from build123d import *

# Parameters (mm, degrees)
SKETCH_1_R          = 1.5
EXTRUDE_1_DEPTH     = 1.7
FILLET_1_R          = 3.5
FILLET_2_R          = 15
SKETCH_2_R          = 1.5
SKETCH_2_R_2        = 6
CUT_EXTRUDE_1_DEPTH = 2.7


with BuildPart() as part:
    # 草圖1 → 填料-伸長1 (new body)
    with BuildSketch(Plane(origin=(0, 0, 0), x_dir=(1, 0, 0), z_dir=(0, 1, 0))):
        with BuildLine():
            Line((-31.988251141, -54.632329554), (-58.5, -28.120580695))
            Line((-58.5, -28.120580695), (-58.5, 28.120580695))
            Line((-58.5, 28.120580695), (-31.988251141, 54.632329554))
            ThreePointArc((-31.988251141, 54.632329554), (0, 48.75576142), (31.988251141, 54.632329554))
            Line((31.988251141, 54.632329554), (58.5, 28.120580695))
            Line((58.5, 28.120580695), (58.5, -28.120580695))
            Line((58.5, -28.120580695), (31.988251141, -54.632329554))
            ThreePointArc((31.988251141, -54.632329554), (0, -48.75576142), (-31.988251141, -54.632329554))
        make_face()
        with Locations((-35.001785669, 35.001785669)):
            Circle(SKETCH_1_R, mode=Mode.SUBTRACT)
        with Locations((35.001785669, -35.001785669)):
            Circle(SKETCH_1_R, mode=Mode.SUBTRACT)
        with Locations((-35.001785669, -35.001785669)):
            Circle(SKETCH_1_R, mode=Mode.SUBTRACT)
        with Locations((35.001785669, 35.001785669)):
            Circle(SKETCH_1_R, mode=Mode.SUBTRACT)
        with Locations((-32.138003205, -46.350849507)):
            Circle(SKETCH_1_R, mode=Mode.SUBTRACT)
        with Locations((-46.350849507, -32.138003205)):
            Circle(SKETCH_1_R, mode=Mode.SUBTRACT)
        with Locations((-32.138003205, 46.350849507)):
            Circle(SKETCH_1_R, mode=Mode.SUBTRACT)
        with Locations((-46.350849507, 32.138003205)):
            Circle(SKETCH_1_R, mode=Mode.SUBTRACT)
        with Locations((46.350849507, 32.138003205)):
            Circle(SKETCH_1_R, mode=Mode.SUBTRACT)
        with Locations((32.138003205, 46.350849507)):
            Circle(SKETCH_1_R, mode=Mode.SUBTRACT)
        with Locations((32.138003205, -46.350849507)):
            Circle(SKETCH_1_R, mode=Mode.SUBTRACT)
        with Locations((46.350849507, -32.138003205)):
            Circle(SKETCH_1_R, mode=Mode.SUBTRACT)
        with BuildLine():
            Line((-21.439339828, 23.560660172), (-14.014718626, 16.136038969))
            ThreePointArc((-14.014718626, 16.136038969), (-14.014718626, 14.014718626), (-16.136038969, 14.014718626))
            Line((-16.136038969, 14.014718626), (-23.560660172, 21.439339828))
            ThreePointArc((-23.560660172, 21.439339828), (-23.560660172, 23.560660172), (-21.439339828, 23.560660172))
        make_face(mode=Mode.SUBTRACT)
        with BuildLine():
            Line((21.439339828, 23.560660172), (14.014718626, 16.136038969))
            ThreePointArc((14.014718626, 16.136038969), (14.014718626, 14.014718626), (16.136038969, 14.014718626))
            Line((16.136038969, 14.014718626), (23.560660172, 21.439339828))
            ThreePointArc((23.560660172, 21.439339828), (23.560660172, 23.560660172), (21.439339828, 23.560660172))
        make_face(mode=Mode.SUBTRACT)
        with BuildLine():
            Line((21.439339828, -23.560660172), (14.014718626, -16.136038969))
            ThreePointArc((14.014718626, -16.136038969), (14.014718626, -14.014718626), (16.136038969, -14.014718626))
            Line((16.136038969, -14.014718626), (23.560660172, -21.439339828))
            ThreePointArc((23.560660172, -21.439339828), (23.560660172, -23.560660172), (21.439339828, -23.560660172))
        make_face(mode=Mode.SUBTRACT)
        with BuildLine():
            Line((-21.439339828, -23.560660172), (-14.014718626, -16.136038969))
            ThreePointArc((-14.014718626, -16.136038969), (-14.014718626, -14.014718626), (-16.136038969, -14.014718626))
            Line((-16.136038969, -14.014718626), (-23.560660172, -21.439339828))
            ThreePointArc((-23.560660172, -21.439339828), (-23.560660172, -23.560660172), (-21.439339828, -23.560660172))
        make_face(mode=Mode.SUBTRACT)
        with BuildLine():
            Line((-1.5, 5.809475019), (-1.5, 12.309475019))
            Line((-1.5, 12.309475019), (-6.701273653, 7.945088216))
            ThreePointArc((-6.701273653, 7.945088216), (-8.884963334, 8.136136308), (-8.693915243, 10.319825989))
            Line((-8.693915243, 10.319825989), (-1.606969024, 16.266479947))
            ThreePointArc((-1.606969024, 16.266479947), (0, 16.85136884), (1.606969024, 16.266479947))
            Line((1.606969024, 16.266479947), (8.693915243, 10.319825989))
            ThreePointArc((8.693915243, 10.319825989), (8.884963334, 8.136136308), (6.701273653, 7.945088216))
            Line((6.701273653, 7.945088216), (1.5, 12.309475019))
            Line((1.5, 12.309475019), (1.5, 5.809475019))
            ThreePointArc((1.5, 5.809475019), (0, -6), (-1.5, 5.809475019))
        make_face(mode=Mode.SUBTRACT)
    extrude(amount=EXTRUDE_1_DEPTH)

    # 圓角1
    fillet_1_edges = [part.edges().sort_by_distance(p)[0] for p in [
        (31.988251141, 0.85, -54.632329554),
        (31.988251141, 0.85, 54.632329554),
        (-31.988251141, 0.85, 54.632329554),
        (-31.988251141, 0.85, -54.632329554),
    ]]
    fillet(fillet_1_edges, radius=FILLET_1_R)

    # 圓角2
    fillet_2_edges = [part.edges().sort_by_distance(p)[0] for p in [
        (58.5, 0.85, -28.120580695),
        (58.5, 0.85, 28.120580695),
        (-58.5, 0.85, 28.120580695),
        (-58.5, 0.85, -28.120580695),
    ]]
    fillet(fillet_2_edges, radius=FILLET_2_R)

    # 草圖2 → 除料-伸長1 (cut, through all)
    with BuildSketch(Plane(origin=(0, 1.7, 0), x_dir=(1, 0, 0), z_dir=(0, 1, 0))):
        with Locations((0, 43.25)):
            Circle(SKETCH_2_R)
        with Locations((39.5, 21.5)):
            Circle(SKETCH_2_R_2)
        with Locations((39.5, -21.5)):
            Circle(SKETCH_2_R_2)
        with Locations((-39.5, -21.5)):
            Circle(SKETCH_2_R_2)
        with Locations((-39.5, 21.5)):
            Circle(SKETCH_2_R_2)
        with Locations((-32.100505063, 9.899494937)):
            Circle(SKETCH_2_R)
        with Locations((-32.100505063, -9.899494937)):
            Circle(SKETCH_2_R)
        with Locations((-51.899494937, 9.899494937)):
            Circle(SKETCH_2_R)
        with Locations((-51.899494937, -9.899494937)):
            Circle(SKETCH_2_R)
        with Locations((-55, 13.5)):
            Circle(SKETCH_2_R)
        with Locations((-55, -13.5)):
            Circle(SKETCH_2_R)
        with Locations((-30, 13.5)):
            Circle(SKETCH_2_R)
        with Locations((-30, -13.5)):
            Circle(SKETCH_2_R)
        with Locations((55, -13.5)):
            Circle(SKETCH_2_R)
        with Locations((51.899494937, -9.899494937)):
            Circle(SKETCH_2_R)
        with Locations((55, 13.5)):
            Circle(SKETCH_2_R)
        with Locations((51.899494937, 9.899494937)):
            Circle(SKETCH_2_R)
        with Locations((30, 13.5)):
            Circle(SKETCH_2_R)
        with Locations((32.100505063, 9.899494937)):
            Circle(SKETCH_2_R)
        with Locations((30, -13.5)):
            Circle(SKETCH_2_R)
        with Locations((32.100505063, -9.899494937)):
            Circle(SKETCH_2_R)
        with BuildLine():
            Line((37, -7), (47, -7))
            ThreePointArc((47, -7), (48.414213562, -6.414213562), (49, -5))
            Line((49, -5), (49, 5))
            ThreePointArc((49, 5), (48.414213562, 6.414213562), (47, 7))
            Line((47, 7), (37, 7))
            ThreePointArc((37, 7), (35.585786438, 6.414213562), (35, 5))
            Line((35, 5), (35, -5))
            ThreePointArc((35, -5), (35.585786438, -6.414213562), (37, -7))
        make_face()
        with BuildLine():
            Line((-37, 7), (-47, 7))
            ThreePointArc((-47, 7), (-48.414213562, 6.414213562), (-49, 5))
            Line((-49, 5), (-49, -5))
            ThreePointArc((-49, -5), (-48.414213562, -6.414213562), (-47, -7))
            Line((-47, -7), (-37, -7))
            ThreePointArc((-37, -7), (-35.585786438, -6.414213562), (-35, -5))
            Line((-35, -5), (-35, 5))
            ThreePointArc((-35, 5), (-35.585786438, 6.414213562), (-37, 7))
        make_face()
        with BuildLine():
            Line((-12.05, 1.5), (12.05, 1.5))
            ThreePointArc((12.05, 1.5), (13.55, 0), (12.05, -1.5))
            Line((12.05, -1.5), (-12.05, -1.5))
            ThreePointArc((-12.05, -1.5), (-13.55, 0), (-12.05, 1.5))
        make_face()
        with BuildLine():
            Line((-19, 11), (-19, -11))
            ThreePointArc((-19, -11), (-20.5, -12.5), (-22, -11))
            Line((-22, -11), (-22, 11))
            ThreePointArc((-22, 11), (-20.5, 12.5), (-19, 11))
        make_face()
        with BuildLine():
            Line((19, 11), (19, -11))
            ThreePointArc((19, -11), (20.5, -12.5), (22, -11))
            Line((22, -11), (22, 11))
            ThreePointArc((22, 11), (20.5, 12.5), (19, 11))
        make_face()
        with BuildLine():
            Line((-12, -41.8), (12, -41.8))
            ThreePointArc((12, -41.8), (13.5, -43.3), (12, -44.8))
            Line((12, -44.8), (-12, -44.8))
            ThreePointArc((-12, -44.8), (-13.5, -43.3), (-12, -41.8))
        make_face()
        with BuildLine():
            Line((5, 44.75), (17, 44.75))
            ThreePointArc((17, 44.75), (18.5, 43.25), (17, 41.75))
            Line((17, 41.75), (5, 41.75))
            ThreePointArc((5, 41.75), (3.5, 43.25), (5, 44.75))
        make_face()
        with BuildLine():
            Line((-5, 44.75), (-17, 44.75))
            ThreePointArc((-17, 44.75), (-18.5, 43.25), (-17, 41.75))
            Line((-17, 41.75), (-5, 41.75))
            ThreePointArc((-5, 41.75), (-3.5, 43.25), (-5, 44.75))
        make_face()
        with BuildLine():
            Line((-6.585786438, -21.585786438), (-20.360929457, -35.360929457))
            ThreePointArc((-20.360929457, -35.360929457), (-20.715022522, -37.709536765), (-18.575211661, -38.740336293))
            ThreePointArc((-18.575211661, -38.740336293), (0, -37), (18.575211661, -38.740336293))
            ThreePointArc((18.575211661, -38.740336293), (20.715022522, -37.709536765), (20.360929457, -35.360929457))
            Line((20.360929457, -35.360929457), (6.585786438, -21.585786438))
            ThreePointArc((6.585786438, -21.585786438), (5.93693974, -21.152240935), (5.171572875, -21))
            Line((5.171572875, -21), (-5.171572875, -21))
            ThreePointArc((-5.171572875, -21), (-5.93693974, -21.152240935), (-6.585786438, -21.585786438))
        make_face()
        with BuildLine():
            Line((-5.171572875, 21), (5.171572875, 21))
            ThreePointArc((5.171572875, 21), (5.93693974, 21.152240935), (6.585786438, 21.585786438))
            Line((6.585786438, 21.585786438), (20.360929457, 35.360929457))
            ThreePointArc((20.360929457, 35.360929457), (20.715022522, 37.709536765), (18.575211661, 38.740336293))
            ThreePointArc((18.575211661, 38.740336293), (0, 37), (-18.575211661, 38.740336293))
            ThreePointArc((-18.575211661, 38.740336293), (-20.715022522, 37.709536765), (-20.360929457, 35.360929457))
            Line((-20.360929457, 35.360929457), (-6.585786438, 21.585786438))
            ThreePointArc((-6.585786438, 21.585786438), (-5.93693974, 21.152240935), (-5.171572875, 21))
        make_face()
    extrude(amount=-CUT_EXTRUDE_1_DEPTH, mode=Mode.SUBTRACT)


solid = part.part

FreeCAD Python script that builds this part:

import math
import FreeCAD as App
import Part
import Sketcher
Q = App.Units.Quantity


def edges_at(feature, points):
    """Names of the edges that pass closest to the given points."""
    edges = feature.Shape.Edges
    near = lambda p: min(range(len(edges)), key=lambda i: edges[i].distToShape(Part.Vertex(*p))[0])
    return sorted({f"Edge{near(p) + 1}" for p in points})

doc = App.newDocument("Part")
body = doc.addObject("PartDesign::Body", "Body")

sketch1 = body.newObject("Sketcher::SketchObject", "Sketch")
sketch1.AttachmentSupport = (doc.getObject("XZ_Plane"), [""])
sketch1.MapMode = "FlatFace"
sketch1.addGeometry([
    Part.LineSegment(App.Vector(-58.5, 28.1, 0), App.Vector(-32, 54.6, 0)),
    Part.ArcOfCircle(Part.Circle(App.Vector(0, 138.8, 0), App.Vector(0, 0, 1), 90), math.radians(-111), math.radians(-69)),
    Part.LineSegment(App.Vector(32, 54.6, 0), App.Vector(58.5, 28.1, 0)),
    Part.LineSegment(App.Vector(58.5, 28.1, 0), App.Vector(58.5, -28.1, 0)),
    Part.LineSegment(App.Vector(58.5, -28.1, 0), App.Vector(32, -54.6, 0)),
    Part.ArcOfCircle(Part.Circle(App.Vector(0, -138.8, 0), App.Vector(0, 0, 1), 90), math.radians(69), math.radians(111)),
    Part.LineSegment(App.Vector(-32, -54.6, 0), App.Vector(-58.5, -28.1, 0)),
    Part.LineSegment(App.Vector(-58.5, -28.1, 0), App.Vector(-58.5, 28.1, 0)),
    Part.Circle(App.Vector(32.1, 46.4, 0), App.Vector(0, 0, 1), 1.5),
    Part.Circle(App.Vector(46.4, 32.1, 0), App.Vector(0, 0, 1), 1.5),
    Part.Circle(App.Vector(35, 35, 0), App.Vector(0, 0, 1), 1.5),
    Part.LineSegment(App.Vector(21.4, 23.6, 0), App.Vector(14, 16.1, 0)),
    Part.ArcOfCircle(Part.Circle(App.Vector(15.1, 15.1, 0), App.Vector(0, 0, 1), 1.5), math.radians(135), math.radians(315)),
    Part.LineSegment(App.Vector(16.1, 14, 0), App.Vector(23.6, 21.4, 0)),
    Part.ArcOfCircle(Part.Circle(App.Vector(22.5, 22.5, 0), App.Vector(0, 0, 1), 1.5), math.radians(-45), math.radians(135)),
    Part.Circle(App.Vector(-32.1, 46.4, 0), App.Vector(0, 0, 1), 1.5),
    Part.Circle(App.Vector(-35, 35, 0), App.Vector(0, 0, 1), 1.5),
    Part.Circle(App.Vector(-46.4, 32.1, 0), App.Vector(0, 0, 1), 1.5),
    Part.ArcOfCircle(Part.Circle(App.Vector(-22.5, 22.5, 0), App.Vector(0, 0, 1), 1.5), math.radians(45), math.radians(225)),
    Part.LineSegment(App.Vector(-23.6, 21.4, 0), App.Vector(-16.1, 14, 0)),
    Part.ArcOfCircle(Part.Circle(App.Vector(-15.1, 15.1, 0), App.Vector(0, 0, 1), 1.5), math.radians(-135), math.radians(45)),
    Part.LineSegment(App.Vector(-14, 16.1, 0), App.Vector(-21.4, 23.6, 0)),
    Part.ArcOfCircle(Part.Circle(App.Vector(22.5, -22.5, 0), App.Vector(0, 0, 1), 1.5), math.radians(-135), math.radians(45)),
    Part.LineSegment(App.Vector(23.6, -21.4, 0), App.Vector(16.1, -14, 0)),
    Part.ArcOfCircle(Part.Circle(App.Vector(15.1, -15.1, 0), App.Vector(0, 0, 1), 1.5), math.radians(45), math.radians(225)),
    Part.LineSegment(App.Vector(14, -16.1, 0), App.Vector(21.4, -23.6, 0)),
    Part.Circle(App.Vector(46.4, -32.1, 0), App.Vector(0, 0, 1), 1.5),
    Part.Circle(App.Vector(35, -35, 0), App.Vector(0, 0, 1), 1.5),
    Part.Circle(App.Vector(32.1, -46.4, 0), App.Vector(0, 0, 1), 1.5),
    Part.LineSegment(App.Vector(-1.5, -5.8, 0), App.Vector(-1.5, -12.3, 0)),
    Part.LineSegment(App.Vector(-1.5, -12.3, 0), App.Vector(-6.7, -7.9, 0)),
    Part.ArcOfCircle(Part.Circle(App.Vector(-7.7, -9.1, 0), App.Vector(0, 0, 1), 1.6), math.radians(50), math.radians(230)),
    Part.LineSegment(App.Vector(-8.7, -10.3, 0), App.Vector(-1.6, -16.3, 0)),
    Part.ArcOfCircle(Part.Circle(App.Vector(0, -14.4, 0), App.Vector(0, 0, 1), 2.5), math.radians(-130), math.radians(-50)),
    Part.LineSegment(App.Vector(1.6, -16.3, 0), App.Vector(8.7, -10.3, 0)),
    Part.ArcOfCircle(Part.Circle(App.Vector(7.7, -9.1, 0), App.Vector(0, 0, 1), 1.6), math.radians(-50), math.radians(130)),
    Part.LineSegment(App.Vector(6.7, -7.9, 0), App.Vector(1.5, -12.3, 0)),
    Part.LineSegment(App.Vector(1.5, -12.3, 0), App.Vector(1.5, -5.8, 0)),
    Part.ArcOfCircle(Part.Circle(App.Vector(0, 0, 0), App.Vector(0, 0, 1), 6), math.radians(-76), math.radians(256)),
    Part.LineSegment(App.Vector(-21.4, -23.6, 0), App.Vector(-14, -16.1, 0)),
    Part.ArcOfCircle(Part.Circle(App.Vector(-15.1, -15.1, 0), App.Vector(0, 0, 1), 1.5), math.radians(-45), math.radians(135)),
    Part.LineSegment(App.Vector(-16.1, -14, 0), App.Vector(-23.6, -21.4, 0)),
    Part.ArcOfCircle(Part.Circle(App.Vector(-22.5, -22.5, 0), App.Vector(0, 0, 1), 1.5), math.radians(135), math.radians(315)),
    Part.Circle(App.Vector(-35, -35, 0), App.Vector(0, 0, 1), 1.5),
    Part.Circle(App.Vector(-46.4, -32.1, 0), App.Vector(0, 0, 1), 1.5),
    Part.Circle(App.Vector(-32.1, -46.4, 0), App.Vector(0, 0, 1), 1.5),
], False)
sketch1.addConstraint([
    Sketcher.Constraint("Coincident", 0, 2, 1, 1),
    Sketcher.Constraint("Coincident", 1, 2, 2, 1),
    Sketcher.Constraint("Coincident", 2, 2, 3, 1),
    Sketcher.Constraint("Coincident", 3, 2, 4, 1),
    Sketcher.Constraint("Coincident", 4, 2, 5, 1),
    Sketcher.Constraint("Coincident", 5, 2, 6, 1),
    Sketcher.Constraint("Coincident", 6, 2, 7, 1),
    Sketcher.Constraint("Coincident", 7, 2, 0, 1),
    Sketcher.Constraint("Tangent", 11, 2, 12, 1),
    Sketcher.Constraint("Tangent", 12, 2, 13, 1),
    Sketcher.Constraint("Tangent", 13, 2, 14, 1),
    Sketcher.Constraint("Tangent", 14, 2, 11, 1),
    Sketcher.Constraint("Tangent", 18, 2, 19, 1),
    Sketcher.Constraint("Tangent", 19, 2, 20, 1),
    Sketcher.Constraint("Tangent", 20, 2, 21, 1),
    Sketcher.Constraint("Tangent", 21, 2, 18, 1),
    Sketcher.Constraint("Tangent", 22, 2, 23, 1),
    Sketcher.Constraint("Tangent", 23, 2, 24, 1),
    Sketcher.Constraint("Tangent", 24, 2, 25, 1),
    Sketcher.Constraint("Tangent", 25, 2, 22, 1),
    Sketcher.Constraint("Coincident", 29, 2, 30, 1),
    Sketcher.Constraint("Tangent", 30, 2, 31, 1),
    Sketcher.Constraint("Tangent", 31, 2, 32, 1),
    Sketcher.Constraint("Tangent", 32, 2, 33, 1),
    Sketcher.Constraint("Tangent", 33, 2, 34, 1),
    Sketcher.Constraint("Tangent", 34, 2, 35, 1),
    Sketcher.Constraint("Tangent", 35, 2, 36, 1),
    Sketcher.Constraint("Coincident", 36, 2, 37, 1),
    Sketcher.Constraint("Coincident", 37, 2, 38, 1),
    Sketcher.Constraint("Coincident", 38, 2, 29, 1),
    Sketcher.Constraint("Tangent", 39, 2, 40, 1),
    Sketcher.Constraint("Tangent", 40, 2, 41, 1),
    Sketcher.Constraint("Tangent", 41, 2, 42, 1),
    Sketcher.Constraint("Tangent", 42, 2, 39, 1),
    Sketcher.Constraint("Vertical", 3),
    Sketcher.Constraint("Vertical", 7),
    Sketcher.Constraint("Vertical", 29),
    Sketcher.Constraint("Vertical", 37),
    Sketcher.Constraint("Coincident", 38, 3, -1, 1),
    Sketcher.Constraint("Equal", 1, 5),
    Sketcher.Constraint("Equal", 8, 9),
    Sketcher.Constraint("Equal", 9, 10),
    Sketcher.Constraint("Equal", 10, 12),
    Sketcher.Constraint("Equal", 12, 14),
    Sketcher.Constraint("Equal", 14, 15),
    Sketcher.Constraint("Equal", 15, 16),
    Sketcher.Constraint("Equal", 16, 17),
    Sketcher.Constraint("Equal", 17, 18),
    Sketcher.Constraint("Equal", 18, 20),
    Sketcher.Constraint("Equal", 20, 22),
    Sketcher.Constraint("Equal", 22, 24),
    Sketcher.Constraint("Equal", 24, 26),
    Sketcher.Constraint("Equal", 26, 27),
    Sketcher.Constraint("Equal", 27, 28),
    Sketcher.Constraint("Equal", 31, 35),
    Sketcher.Constraint("Equal", 28, 40),
    Sketcher.Constraint("Equal", 40, 42),
    Sketcher.Constraint("Equal", 42, 43),
    Sketcher.Constraint("Equal", 43, 44),
    Sketcher.Constraint("Equal", 44, 45),
    Sketcher.Constraint("Symmetric", 1, 3, 5, 3, -1, 1),
    Sketcher.Constraint("Symmetric", 18, 3, 22, 3, -1, 1),
    Sketcher.Constraint("Symmetric", 20, 3, 24, 3, -1, 1),
    Sketcher.Constraint("Symmetric", 17, 3, 26, 3, -1, 1),
    Sketcher.Constraint("Symmetric", 16, 3, 27, 3, -1, 1),
    Sketcher.Constraint("Symmetric", 15, 3, 28, 3, -1, 1),
    Sketcher.Constraint("Symmetric", 12, 3, 40, 3, -1, 1),
    Sketcher.Constraint("Symmetric", 14, 3, 42, 3, -1, 1),
    Sketcher.Constraint("Symmetric", 10, 3, 43, 3, -1, 1),
    Sketcher.Constraint("Symmetric", 9, 3, 44, 3, -1, 1),
    Sketcher.Constraint("Symmetric", 8, 3, 45, 3, -1, 1),
    Sketcher.Constraint("Symmetric", 2, 2, 6, 2, -1, 1),
    Sketcher.Constraint("Symmetric", 8, 3, 15, 3, -2),
    Sketcher.Constraint("Symmetric", 10, 3, 16, 3, -2),
    Sketcher.Constraint("Symmetric", 9, 3, 17, 3, -2),
    Sketcher.Constraint("Symmetric", 14, 3, 18, 3, -2),
    Sketcher.Constraint("Symmetric", 12, 3, 20, 3, -2),
    Sketcher.Constraint("Symmetric", 31, 3, 35, 3, -2),
    Sketcher.Constraint("Symmetric", 0, 2, 1, 2, -2),
    Sketcher.Constraint("Symmetric", 29, 2, 36, 2, -2),
    Sketcher.Constraint("PointOnObject", 33, 3, -2),
    Sketcher.Constraint("Perpendicular", 0, 2),
    Sketcher.Constraint("Perpendicular", 2, 4),
    Sketcher.Constraint("Perpendicular", 4, 6),
    Sketcher.Constraint("Perpendicular", 6, 11),
    Sketcher.Constraint("Perpendicular", 13, 19),
    Sketcher.Constraint("Parallel", 30, 32),
    Sketcher.Constraint("Horizontal", 4, 2, 5, 2),
    Sketcher.Constraint("Diameter", 8, Q("3 mm")),
    Sketcher.Constraint("Radius", 1, Q("90 mm")),
    Sketcher.Constraint("Radius", 38, Q("6 mm")),
    Sketcher.Constraint("Radius", 33, Q("2.5 mm")),
    Sketcher.Constraint("Angle", 30, Q("140 deg")),
    Sketcher.Constraint("Radius", 31, Q("1.55 mm")),
    Sketcher.Constraint("DistanceY", 29, 2, 29, 1, Q("6.5 mm")),
    Sketcher.Constraint("DistanceX", 18, 3, 14, 3, Q("45 mm")),
    Sketcher.Constraint("DistanceY", 22, 3, 14, 3, Q("45 mm")),
    Sketcher.Constraint("DistanceX", 14, 3, 2, 2, Q("36 mm")),
    Sketcher.Constraint("DistanceX", 29, 2, 36, 2, Q("3 mm")),
    Sketcher.Constraint("Distance", 11, Q("10.5 mm")),
    Sketcher.Constraint("DistanceY", 3, 2, 3, 1, Q("56.241161 mm")),
    Sketcher.Constraint("DistanceX", 17, 3, 0, 2, Q("14.362598 mm")),
    Sketcher.Constraint("Distance", 30, Q("6.789781 mm")),
    Sketcher.Constraint("DistanceY", -1, 1, 1, 3, Q("138.755761 mm")),
    Sketcher.Constraint("DistanceY", -1, 1, 8, 3, Q("46.35085 mm")),
    Sketcher.Constraint("DistanceY", 9, 3, 1, 3, Q("106.617758 mm")),
    Sketcher.Constraint("DistanceX", 15, 3, 10, 3, Q("67.139789 mm")),
    Sketcher.Constraint("DistanceX", 16, 3, 10, 3, Q("70.003571 mm")),
    Sketcher.Constraint("DistanceY", 43, 3, 31, 3, Q("25.869329 mm")),
])
pad1 = body.newObject("PartDesign::Pad", "Pad")
pad1.Profile = sketch1
pad1.Length = 1.7
pad1.Reversed = True
doc.recompute()

fillet = body.newObject("PartDesign::Fillet", "Fillet")
fillet.Base = (pad1, edges_at(pad1, [
    (31.988, 0.85, -54.632),
    (31.988, 0.85, 54.632),
    (-31.988, 0.85, 54.632),
    (-31.988, 0.85, -54.632),
]))
fillet.Radius = 3.5
doc.recompute()

fillet2 = body.newObject("PartDesign::Fillet", "Fillet001")
fillet2.Base = (fillet, edges_at(fillet, [
    (58.5, 0.85, -28.121),
    (58.5, 0.85, 28.121),
    (-58.5, 0.85, 28.121),
    (-58.5, 0.85, -28.121),
]))
fillet2.Radius = 15

sketch2 = body.newObject("Sketcher::SketchObject", "Sketch001")
sketch2.AttachmentSupport = (doc.getObject("XZ_Plane"), [""])
sketch2.MapMode = "FlatFace"
sketch2.AttachmentOffset = App.Placement(App.Vector(0, 0, -1.7), App.Rotation())
sketch2.addGeometry([
    Part.Circle(App.Vector(0, -43.2, 0), App.Vector(0, 0, 1), 1.5),
    Part.Circle(App.Vector(39.5, -21.5, 0), App.Vector(0, 0, 1), 6),
    Part.Circle(App.Vector(39.5, 21.5, 0), App.Vector(0, 0, 1), 6),
    Part.Circle(App.Vector(-39.5, 21.5, 0), App.Vector(0, 0, 1), 6),
    Part.Circle(App.Vector(-39.5, -21.5, 0), App.Vector(0, 0, 1), 6),
    Part.Circle(App.Vector(-32.1, -9.9, 0), App.Vector(0, 0, 1), 1.5),
    Part.Circle(App.Vector(-32.1, 9.9, 0), App.Vector(0, 0, 1), 1.5),
    Part.Circle(App.Vector(-51.9, -9.9, 0), App.Vector(0, 0, 1), 1.5),
    Part.Circle(App.Vector(-51.9, 9.9, 0), App.Vector(0, 0, 1), 1.5),
    Part.Circle(App.Vector(-55, -13.5, 0), App.Vector(0, 0, 1), 1.5),
    Part.Circle(App.Vector(-55, 13.5, 0), App.Vector(0, 0, 1), 1.5),
    Part.Circle(App.Vector(-30, -13.5, 0), App.Vector(0, 0, 1), 1.5),
    Part.Circle(App.Vector(-30, 13.5, 0), App.Vector(0, 0, 1), 1.5),
    Part.Circle(App.Vector(55, 13.5, 0), App.Vector(0, 0, 1), 1.5),
    Part.Circle(App.Vector(51.9, 9.9, 0), App.Vector(0, 0, 1), 1.5),
    Part.Circle(App.Vector(55, -13.5, 0), App.Vector(0, 0, 1), 1.5),
    Part.Circle(App.Vector(51.9, -9.9, 0), App.Vector(0, 0, 1), 1.5),
    Part.Circle(App.Vector(30, -13.5, 0), App.Vector(0, 0, 1), 1.5),
    Part.Circle(App.Vector(32.1, -9.9, 0), App.Vector(0, 0, 1), 1.5),
    Part.Circle(App.Vector(30, 13.5, 0), App.Vector(0, 0, 1), 1.5),
    Part.Circle(App.Vector(32.1, 9.9, 0), App.Vector(0, 0, 1), 1.5),
    Part.LineSegment(App.Vector(37, 7, 0), App.Vector(47, 7, 0)),
    Part.ArcOfCircle(Part.Circle(App.Vector(47, 5, 0), App.Vector(0, 0, 1), 2), math.radians(0), math.radians(90)),
    Part.LineSegment(App.Vector(49, 5, 0), App.Vector(49, -5, 0)),
    Part.ArcOfCircle(Part.Circle(App.Vector(47, -5, 0), App.Vector(0, 0, 1), 2), math.radians(-90), math.radians(0)),
    Part.LineSegment(App.Vector(47, -7, 0), App.Vector(37, -7, 0)),
    Part.ArcOfCircle(Part.Circle(App.Vector(37, -5, 0), App.Vector(0, 0, 1), 2), math.radians(-180), math.radians(-90)),
    Part.LineSegment(App.Vector(35, -5, 0), App.Vector(35, 5, 0)),
    Part.ArcOfCircle(Part.Circle(App.Vector(37, 5, 0), App.Vector(0, 0, 1), 2), math.radians(90), math.radians(180)),
    Part.LineSegment(App.Vector(-37, -7, 0), App.Vector(-47, -7, 0)),
    Part.ArcOfCircle(Part.Circle(App.Vector(-47, -5, 0), App.Vector(0, 0, 1), 2), math.radians(-180), math.radians(-90)),
    Part.LineSegment(App.Vector(-49, -5, 0), App.Vector(-49, 5, 0)),
    Part.ArcOfCircle(Part.Circle(App.Vector(-47, 5, 0), App.Vector(0, 0, 1), 2), math.radians(90), math.radians(180)),
    Part.LineSegment(App.Vector(-47, 7, 0), App.Vector(-37, 7, 0)),
    Part.ArcOfCircle(Part.Circle(App.Vector(-37, 5, 0), App.Vector(0, 0, 1), 2), math.radians(0), math.radians(90)),
    Part.LineSegment(App.Vector(-35, 5, 0), App.Vector(-35, -5, 0)),
    Part.ArcOfCircle(Part.Circle(App.Vector(-37, -5, 0), App.Vector(0, 0, 1), 2), math.radians(-90), math.radians(0)),
    Part.LineSegment(App.Vector(12.1, -1.5, 0), App.Vector(-12.1, -1.5, 0)),
    Part.ArcOfCircle(Part.Circle(App.Vector(-12.1, 0, 0), App.Vector(0, 0, 1), 1.5), math.radians(90), math.radians(270)),
    Part.LineSegment(App.Vector(-12.1, 1.5, 0), App.Vector(12.1, 1.5, 0)),
    Part.ArcOfCircle(Part.Circle(App.Vector(12.1, 0, 0), App.Vector(0, 0, 1), 1.5), math.radians(-90), math.radians(90)),
    Part.LineSegment(App.Vector(-19, 11, 0), App.Vector(-19, -11, 0)),
    Part.ArcOfCircle(Part.Circle(App.Vector(-20.5, -11, 0), App.Vector(0, 0, 1), 1.5), math.radians(180), math.radians(360)),
    Part.LineSegment(App.Vector(-22, -11, 0), App.Vector(-22, 11, 0)),
    Part.ArcOfCircle(Part.Circle(App.Vector(-20.5, 11, 0), App.Vector(0, 0, 1), 1.5), math.radians(0), math.radians(180)),
    Part.LineSegment(App.Vector(19, -11, 0), App.Vector(19, 11, 0)),
    Part.ArcOfCircle(Part.Circle(App.Vector(20.5, 11, 0), App.Vector(0, 0, 1), 1.5), math.radians(0), math.radians(180)),
    Part.LineSegment(App.Vector(22, 11, 0), App.Vector(22, -11, 0)),
    Part.ArcOfCircle(Part.Circle(App.Vector(20.5, -11, 0), App.Vector(0, 0, 1), 1.5), math.radians(180), math.radians(360)),
    Part.LineSegment(App.Vector(12, 41.8, 0), App.Vector(-12, 41.8, 0)),
    Part.ArcOfCircle(Part.Circle(App.Vector(-12, 43.3, 0), App.Vector(0, 0, 1), 1.5), math.radians(90), math.radians(270)),
    Part.LineSegment(App.Vector(-12, 44.8, 0), App.Vector(12, 44.8, 0)),
    Part.ArcOfCircle(Part.Circle(App.Vector(12, 43.3, 0), App.Vector(0, 0, 1), 1.5), math.radians(-90), math.radians(90)),
    Part.LineSegment(App.Vector(17, -44.8, 0), App.Vector(5, -44.8, 0)),
    Part.ArcOfCircle(Part.Circle(App.Vector(5, -43.2, 0), App.Vector(0, 0, 1), 1.5), math.radians(90), math.radians(270)),
    Part.LineSegment(App.Vector(5, -41.8, 0), App.Vector(17, -41.8, 0)),
    Part.ArcOfCircle(Part.Circle(App.Vector(17, -43.2, 0), App.Vector(0, 0, 1), 1.5), math.radians(-90), math.radians(90)),
    Part.LineSegment(App.Vector(-5, -44.8, 0), App.Vector(-17, -44.8, 0)),
    Part.ArcOfCircle(Part.Circle(App.Vector(-17, -43.2, 0), App.Vector(0, 0, 1), 1.5), math.radians(90), math.radians(270)),
    Part.LineSegment(App.Vector(-17, -41.8, 0), App.Vector(-5, -41.8, 0)),
    Part.ArcOfCircle(Part.Circle(App.Vector(-5, -43.2, 0), App.Vector(0, 0, 1), 1.5), math.radians(-90), math.radians(90)),
    Part.LineSegment(App.Vector(-6.6, 21.6, 0), App.Vector(-20.4, 35.4, 0)),
    Part.ArcOfCircle(Part.Circle(App.Vector(-18.9, 36.8, 0), App.Vector(0, 0, 1), 2), math.radians(79), math.radians(225)),
    Part.ArcOfCircle(Part.Circle(App.Vector(0, 137, 0), App.Vector(0, 0, 1), 100), math.radians(-101), math.radians(-79)),
    Part.ArcOfCircle(Part.Circle(App.Vector(18.9, 36.8, 0), App.Vector(0, 0, 1), 2), math.radians(-45), math.radians(101)),
    Part.LineSegment(App.Vector(20.4, 35.4, 0), App.Vector(6.6, 21.6, 0)),
    Part.ArcOfCircle(Part.Circle(App.Vector(5.2, 23, 0), App.Vector(0, 0, 1), 2), math.radians(-90), math.radians(-45)),
    Part.LineSegment(App.Vector(5.2, 21, 0), App.Vector(-5.2, 21, 0)),
    Part.ArcOfCircle(Part.Circle(App.Vector(-5.2, 23, 0), App.Vector(0, 0, 1), 2), math.radians(-135), math.radians(-90)),
    Part.LineSegment(App.Vector(-5.2, -21, 0), App.Vector(5.2, -21, 0)),
    Part.ArcOfCircle(Part.Circle(App.Vector(5.2, -23, 0), App.Vector(0, 0, 1), 2), math.radians(45), math.radians(90)),
    Part.LineSegment(App.Vector(6.6, -21.6, 0), App.Vector(20.4, -35.4, 0)),
    Part.ArcOfCircle(Part.Circle(App.Vector(18.9, -36.8, 0), App.Vector(0, 0, 1), 2), math.radians(-101), math.radians(45)),
    Part.ArcOfCircle(Part.Circle(App.Vector(0, -137, 0), App.Vector(0, 0, 1), 100), math.radians(79), math.radians(101)),
    Part.ArcOfCircle(Part.Circle(App.Vector(-18.9, -36.8, 0), App.Vector(0, 0, 1), 2), math.radians(135), math.radians(281)),
    Part.LineSegment(App.Vector(-20.4, -35.4, 0), App.Vector(-6.6, -21.6, 0)),
    Part.ArcOfCircle(Part.Circle(App.Vector(-5.2, -23, 0), App.Vector(0, 0, 1), 2), math.radians(90), math.radians(135)),
], False)
sketch2.addConstraint([
    Sketcher.Constraint("Tangent", 21, 2, 22, 2),
    Sketcher.Constraint("Tangent", 22, 1, 23, 1),
    Sketcher.Constraint("Tangent", 23, 2, 24, 2),
    Sketcher.Constraint("Tangent", 24, 1, 25, 1),
    Sketcher.Constraint("Tangent", 25, 2, 26, 2),
    Sketcher.Constraint("Tangent", 26, 1, 27, 1),
    Sketcher.Constraint("Tangent", 27, 2, 28, 2),
    Sketcher.Constraint("Tangent", 28, 1, 21, 1),
    Sketcher.Constraint("Tangent", 29, 2, 30, 2),
    Sketcher.Constraint("Tangent", 30, 1, 31, 1),
    Sketcher.Constraint("Tangent", 31, 2, 32, 2),
    Sketcher.Constraint("Tangent", 32, 1, 33, 1),
    Sketcher.Constraint("Tangent", 33, 2, 34, 2),
    Sketcher.Constraint("Tangent", 34, 1, 35, 1),
    Sketcher.Constraint("Tangent", 35, 2, 36, 2),
    Sketcher.Constraint("Tangent", 36, 1, 29, 1),
    Sketcher.Constraint("Tangent", 37, 2, 38, 2),
    Sketcher.Constraint("Tangent", 38, 1, 39, 1),
    Sketcher.Constraint("Tangent", 39, 2, 40, 2),
    Sketcher.Constraint("Tangent", 40, 1, 37, 1),
    Sketcher.Constraint("Tangent", 41, 2, 42, 2),
    Sketcher.Constraint("Tangent", 42, 1, 43, 1),
    Sketcher.Constraint("Tangent", 43, 2, 44, 2),
    Sketcher.Constraint("Tangent", 44, 1, 41, 1),
    Sketcher.Constraint("Tangent", 45, 2, 46, 2),
    Sketcher.Constraint("Tangent", 46, 1, 47, 1),
    Sketcher.Constraint("Tangent", 47, 2, 48, 2),
    Sketcher.Constraint("Tangent", 48, 1, 45, 1),
    Sketcher.Constraint("Tangent", 49, 2, 50, 2),
    Sketcher.Constraint("Tangent", 50, 1, 51, 1),
    Sketcher.Constraint("Tangent", 51, 2, 52, 2),
    Sketcher.Constraint("Tangent", 52, 1, 49, 1),
    Sketcher.Constraint("Tangent", 53, 2, 54, 2),
    Sketcher.Constraint("Tangent", 54, 1, 55, 1),
    Sketcher.Constraint("Tangent", 55, 2, 56, 2),
    Sketcher.Constraint("Tangent", 56, 1, 53, 1),
    Sketcher.Constraint("Tangent", 57, 2, 58, 2),
    Sketcher.Constraint("Tangent", 58, 1, 59, 1),
    Sketcher.Constraint("Tangent", 59, 2, 60, 2),
    Sketcher.Constraint("Tangent", 60, 1, 57, 1),
    Sketcher.Constraint("Tangent", 61, 2, 62, 2),
    Sketcher.Constraint("Tangent", 62, 1, 63, 1),
    Sketcher.Constraint("Tangent", 63, 2, 64, 2),
    Sketcher.Constraint("Tangent", 64, 1, 65, 1),
    Sketcher.Constraint("Tangent", 65, 2, 66, 2),
    Sketcher.Constraint("Tangent", 66, 1, 67, 1),
    Sketcher.Constraint("Tangent", 67, 2, 68, 2),
    Sketcher.Constraint("Tangent", 68, 1, 61, 1),
    Sketcher.Constraint("Tangent", 69, 2, 70, 2),
    Sketcher.Constraint("Tangent", 70, 1, 71, 1),
    Sketcher.Constraint("Tangent", 71, 2, 72, 2),
    Sketcher.Constraint("Tangent", 72, 1, 73, 1),
    Sketcher.Constraint("Tangent", 73, 2, 74, 2),
    Sketcher.Constraint("Tangent", 74, 1, 75, 1),
    Sketcher.Constraint("Tangent", 75, 2, 76, 2),
    Sketcher.Constraint("Tangent", 76, 1, 69, 1),
    Sketcher.Constraint("Horizontal", 21),
    Sketcher.Constraint("Vertical", 23),
    Sketcher.Constraint("Horizontal", 25),
    Sketcher.Constraint("Vertical", 27),
    Sketcher.Constraint("Horizontal", 29),
    Sketcher.Constraint("Vertical", 31),
    Sketcher.Constraint("Horizontal", 33),
    Sketcher.Constraint("Vertical", 35),
    Sketcher.Constraint("Horizontal", 37),
    Sketcher.Constraint("Horizontal", 39),
    Sketcher.Constraint("Vertical", 41),
    Sketcher.Constraint("Vertical", 43),
    Sketcher.Constraint("Vertical", 45),
    Sketcher.Constraint("Vertical", 47),
    Sketcher.Constraint("Horizontal", 49),
    Sketcher.Constraint("Horizontal", 51),
    Sketcher.Constraint("Horizontal", 53),
    Sketcher.Constraint("Horizontal", 55),
    Sketcher.Constraint("Horizontal", 57),
    Sketcher.Constraint("Horizontal", 59),
    Sketcher.Constraint("Horizontal", 67),
    Sketcher.Constraint("Horizontal", 69),
    Sketcher.Constraint("Equal", 1, 2),
    Sketcher.Constraint("Equal", 2, 3),
    Sketcher.Constraint("Equal", 3, 4),
    Sketcher.Constraint("Equal", 0, 5),
    Sketcher.Constraint("Equal", 5, 6),
    Sketcher.Constraint("Equal", 6, 7),
    Sketcher.Constraint("Equal", 7, 8),
    Sketcher.Constraint("Equal", 8, 9),
    Sketcher.Constraint("Equal", 9, 10),
    Sketcher.Constraint("Equal", 10, 11),
    Sketcher.Constraint("Equal", 11, 12),
    Sketcher.Constraint("Equal", 12, 13),
    Sketcher.Constraint("Equal", 13, 14),
    Sketcher.Constraint("Equal", 14, 15),
    Sketcher.Constraint("Equal", 15, 16),
    Sketcher.Constraint("Equal", 16, 17),
    Sketcher.Constraint("Equal", 17, 18),
    Sketcher.Constraint("Equal", 18, 19),
    Sketcher.Constraint("Equal", 19, 20),
    Sketcher.Constraint("Equal", 22, 24),
    Sketcher.Constraint("Equal", 24, 26),
    Sketcher.Constraint("Equal", 26, 28),
    Sketcher.Constraint("Equal", 28, 30),
    Sketcher.Constraint("Equal", 30, 32),
    Sketcher.Constraint("Equal", 32, 34),
    Sketcher.Constraint("Equal", 34, 36),
    Sketcher.Constraint("Equal", 20, 38),
    Sketcher.Constraint("Equal", 40, 42),
    Sketcher.Constraint("Equal", 44, 46),
    Sketcher.Constraint("Equal", 48, 50),
    Sketcher.Constraint("Equal", 52, 54),
    Sketcher.Constraint("Equal", 56, 58),
    Sketcher.Constraint("Equal", 36, 62),
    Sketcher.Constraint("Equal", 62, 64),
    Sketcher.Constraint("Equal", 64, 66),
    Sketcher.Constraint("Equal", 66, 68),
    Sketcher.Constraint("Equal", 68, 70),
    Sketcher.Constraint("Equal", 70, 72),
    Sketcher.Constraint("Equal", 63, 73),
    Sketcher.Constraint("Equal", 72, 74),
    Sketcher.Constraint("Equal", 74, 76),
    Sketcher.Constraint("Symmetric", 1, 3, 3, 3, -1, 1),
    Sketcher.Constraint("Symmetric", 2, 3, 4, 3, -1, 1),
    Sketcher.Constraint("Symmetric", 9, 3, 13, 3, -1, 1),
    Sketcher.Constraint("Symmetric", 7, 3, 14, 3, -1, 1),
    Sketcher.Constraint("Symmetric", 10, 3, 15, 3, -1, 1),
    Sketcher.Constraint("Symmetric", 8, 3, 16, 3, -1, 1),
    Sketcher.Constraint("Symmetric", 12, 3, 17, 3, -1, 1),
    Sketcher.Constraint("Symmetric", 6, 3, 18, 3, -1, 1),
    Sketcher.Constraint("Symmetric", 11, 3, 19, 3, -1, 1),
    Sketcher.Constraint("Symmetric", 5, 3, 20, 3, -1, 1),
    Sketcher.Constraint("Symmetric", 22, 3, 30, 3, -1, 1),
    Sketcher.Constraint("Symmetric", 26, 3, 34, 3, -1, 1),
    Sketcher.Constraint("Symmetric", 38, 3, 40, 3, -1, 1),
    Sketcher.Constraint("Symmetric", 42, 3, 46, 3, -1, 1),
    Sketcher.Constraint("Symmetric", 68, 3, 70, 3, -1, 1),
    Sketcher.Constraint("Symmetric", 62, 3, 72, 3, -1, 1),
    Sketcher.Constraint("Symmetric", 64, 3, 74, 3, -1, 1),
    Sketcher.Constraint("Symmetric", 2, 3, 3, 3, -2),
    Sketcher.Constraint("Symmetric", 10, 3, 13, 3, -2),
    Sketcher.Constraint("Symmetric", 8, 3, 14, 3, -2),
    Sketcher.Constraint("Symmetric", 11, 3, 17, 3, -2),
    Sketcher.Constraint("Symmetric", 5, 3, 18, 3, -2),
    Sketcher.Constraint("Symmetric", 56, 3, 58, 3, -2),
    Sketcher.Constraint("Symmetric", 62, 3, 64, 3, -2),
    Sketcher.Constraint("PointOnObject", 0, 3, -2),
    Sketcher.Constraint("Perpendicular", 61, 65),
    Sketcher.Constraint("Perpendicular", 71, 75),
    Sketcher.Constraint("Horizontal", 5, 3, 7, 3),
    Sketcher.Constraint("Horizontal", 9, 3, 11, 3),
    Sketcher.Constraint("Horizontal", 26, 3, 30, 3),
    Sketcher.Constraint("Horizontal", 44, 3, 46, 3),
    Sketcher.Constraint("Horizontal", 42, 3, 48, 3),
    Sketcher.Constraint("Horizontal", 0, 3, 54, 3),
    Sketcher.Constraint("Horizontal", 61, 2, 64, 1),
    Sketcher.Constraint("Equal", 55, 57),
    Sketcher.Constraint("Equal", 33, 23),
    Sketcher.Constraint("Diameter", 0, Q("3 mm")),
    Sketcher.Constraint("Diameter", 1, Q("12 mm")),
    Sketcher.Constraint("Radius", 22, Q("2 mm")),
    Sketcher.Constraint("Radius", 63, Q("100 mm")),
    Sketcher.Constraint("DistanceX", 21, 1, 21, 2, Q("10 mm")),
    Sketcher.Constraint("DistanceX", 49, 2, 49, 1, Q("24 mm")),
    Sketcher.Constraint("DistanceX", 53, 2, 53, 1, Q("12 mm")),
    Sketcher.Constraint("DistanceY", 41, 2, 41, 1, Q("22 mm")),
    Sketcher.Constraint("DistanceX", 37, 2, 37, 1, Q("24.1 mm")),
    Sketcher.Constraint("DistanceX", 9, 3, -1, 1, Q("55 mm")),
    Sketcher.Constraint("DistanceX", 11, 3, -1, 1, Q("30 mm")),
    Sketcher.Constraint("DistanceX", -1, 1, 22, 3, Q("47 mm")),
    Sketcher.Constraint("DistanceX", 50, 3, -1, 1, Q("12 mm")),
    Sketcher.Constraint("DistanceX", -1, 1, 54, 3, Q("5 mm")),
    Sketcher.Constraint("DistanceY", -1, 1, 63, 3, Q("137 mm")),
    Sketcher.Constraint("DistanceY", -1, 1, 66, 3, Q("23 mm")),
    Sketcher.Constraint("DistanceX", 41, 2, -1, 1, Q("19 mm")),
    Sketcher.Constraint("DistanceX", -1, 1, 1, 3, Q("39.5 mm")),
    Sketcher.Constraint("DistanceY", 1, 3, -1, 1, Q("21.5 mm")),
    Sketcher.Constraint("DistanceY", 9, 3, -1, 1, Q("13.5 mm")),
    Sketcher.Constraint("DistanceY", -1, 1, 50, 3, Q("43.3 mm")),
    Sketcher.Constraint("DistanceY", 0, 3, -1, 1, Q("43.25 mm")),
    Sketcher.Constraint("DistanceX", 67, 2, 67, 1, Q("10.343146 mm")),
    Sketcher.Constraint("DistanceX", 5, 3, -1, 1, Q("32.100505 mm")),
    Sketcher.Constraint("DistanceY", 5, 3, -1, 1, Q("9.899495 mm")),
    Sketcher.Constraint("DistanceX", 7, 3, -1, 1, Q("51.899495 mm")),
])
pocket1 = body.newObject("PartDesign::Pocket", "Pocket")
pocket1.Profile = sketch2
pocket1.Type = "ThroughAll"
pocket1.Reversed = True

doc.recompute()
